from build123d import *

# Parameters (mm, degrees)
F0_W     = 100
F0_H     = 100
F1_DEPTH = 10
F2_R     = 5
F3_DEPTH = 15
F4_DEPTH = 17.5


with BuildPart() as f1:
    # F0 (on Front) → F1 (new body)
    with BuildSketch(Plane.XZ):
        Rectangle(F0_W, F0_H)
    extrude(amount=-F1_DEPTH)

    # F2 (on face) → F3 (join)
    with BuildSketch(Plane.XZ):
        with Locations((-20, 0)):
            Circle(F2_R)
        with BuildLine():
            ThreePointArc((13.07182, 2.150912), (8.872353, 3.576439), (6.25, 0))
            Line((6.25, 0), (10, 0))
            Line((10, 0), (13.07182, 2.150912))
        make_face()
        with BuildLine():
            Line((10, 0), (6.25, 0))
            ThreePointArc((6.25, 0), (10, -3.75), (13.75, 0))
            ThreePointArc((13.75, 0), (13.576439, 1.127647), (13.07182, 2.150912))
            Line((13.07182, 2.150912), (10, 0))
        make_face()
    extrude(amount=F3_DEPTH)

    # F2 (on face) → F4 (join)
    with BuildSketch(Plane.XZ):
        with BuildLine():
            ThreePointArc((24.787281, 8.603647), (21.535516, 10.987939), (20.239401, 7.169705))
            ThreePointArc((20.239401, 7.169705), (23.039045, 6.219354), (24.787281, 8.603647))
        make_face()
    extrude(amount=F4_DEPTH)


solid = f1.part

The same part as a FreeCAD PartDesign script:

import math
import FreeCAD as App
import Part
import Sketcher
from FreeCAD import Vector

doc = App.newDocument("Part")
body = doc.addObject("PartDesign::Body", "Body")

# Sketch on XZ plane
sketch1 = body.newObject("Sketcher::SketchObject", "Sketch")
sketch1.AttachmentSupport = (doc.getObject("XZ_Plane"), [""])
sketch1.MapMode = "FlatFace"
sketch1.addGeometry(Part.LineSegment(Vector(-50, 50, 0), Vector(-50, -50, 0)), False)
sketch1.addGeometry(Part.LineSegment(Vector(-50, -50, 0), Vector(50, -50, 0)), False)
sketch1.addGeometry(Part.LineSegment(Vector(50, -50, 0), Vector(50, 50, 0)), False)
sketch1.addGeometry(Part.LineSegment(Vector(50, 50, 0), Vector(-50, 50, 0)), False)
sketch1.addConstraint(Sketcher.Constraint("Coincident", 0, 2, 1, 1))
sketch1.addConstraint(Sketcher.Constraint("Coincident", 1, 2, 2, 1))
sketch1.addConstraint(Sketcher.Constraint("Coincident", 2, 2, 3, 1))
sketch1.addConstraint(Sketcher.Constraint("Coincident", 3, 2, 0, 1))
sketch1.addConstraint(Sketcher.Constraint("Vertical", 0))
sketch1.addConstraint(Sketcher.Constraint("Horizontal", 1))
sketch1.addConstraint(Sketcher.Constraint("Vertical", 2))
sketch1.addConstraint(Sketcher.Constraint("Horizontal", 3))
sketch1.addConstraint(Sketcher.Constraint("Symmetric", 0, 2, 2, 2, -1, 1))
sketch1.addConstraint(Sketcher.Constraint("Equal", 3, 0))
sketch1.addConstraint(Sketcher.Constraint("DistanceX", 1, 1, 1, 2, 100.0))
pad1 = body.newObject("PartDesign::Pad", "Pad")
pad1.Profile = sketch1
pad1.Length = 10
pad1.Reversed = True

# Sketch on XZ plane
sketch2 = body.newObject("Sketcher::SketchObject", "Sketch001")
sketch2.AttachmentSupport = (doc.getObject("XZ_Plane"), [""])
sketch2.MapMode = "FlatFace"
sketch2.addGeometry(Part.Circle(Vector(-20, 0, 0), Vector(0, 0, 1), 5), False)
sketch2.addGeometry(Part.ArcOfCircle(Part.Circle(Vector(10, 0.000001, 0), Vector(0, 0, 1), 3.75), math.radians(34.999997), math.radians(180.00001)), False)
sketch2.addGeometry(Part.ArcOfCircle(Part.Circle(Vector(10, 0, 0), Vector(0, 0, 1), 3.75), math.radians(180), math.radians(360)), False)
sketch2.addGeometry(Part.ArcOfCircle(Part.Circle(Vector(10.000009, 0.000003, 0), Vector(0, 0, 1), 3.749991), math.radians(-0.000047), math.radians(35.000049)), False)
sketch2.addConstraint(Sketcher.Constraint("Tangent", 1, 2, 2, 1))
sketch2.addConstraint(Sketcher.Constraint("Tangent", 2, 2, 3, 1))
sketch2.addConstraint(Sketcher.Constraint("Tangent", 3, 2, 1, 1))
sketch2.addConstraint(Sketcher.Constraint("PointOnObject", 0, 3, -1))
sketch2.addConstraint(Sketcher.Constraint("PointOnObject", 1, 3, -1))
sketch2.addConstraint(Sketcher.Constraint("PointOnObject", 1, 2, -1))
sketch2.addConstraint(Sketcher.Constraint("PointOnObject", 2, 2, -1))
sketch2.addConstraint(Sketcher.Constraint("Diameter", 0, 10.0))
sketch2.addConstraint(Sketcher.Constraint("Radius", 1, 3.75))
sketch2.addConstraint(Sketcher.Constraint("DistanceX", 0, 3, -1, 1, 20.0))
sketch2.addConstraint(Sketcher.Constraint("DistanceX", -1, 1, 1, 3, 10.0))
sketch2.addConstraint(Sketcher.Constraint("DistanceX", -1, 1, 3, 2, 13.07182))
pad2 = body.newObject("PartDesign::Pad", "Pad001")
pad2.Profile = sketch2
pad2.Length = 15

# Sketch on XZ plane
sketch3 = body.newObject("Sketcher::SketchObject", "Sketch002")
sketch3.AttachmentSupport = (doc.getObject("XZ_Plane"), [""])
sketch3.MapMode = "FlatFace"
sketch3.addGeometry(Part.ArcOfCircle(Part.Circle(Vector(22.287281, 8.603647, 0), Vector(0, 0, 1), 2.5), math.radians(0.000009), math.radians(215.000013)), False)
sketch3.addGeometry(Part.ArcOfCircle(Part.Circle(Vector(22.287281, 8.603647, 0), Vector(0, 0, 1), 2.5), math.radians(-144.999987), math.radians(0.000009)), False)
sketch3.addConstraint(Sketcher.Constraint("Tangent", 0, 1, 1, 2))
sketch3.addConstraint(Sketcher.Constraint("Coincident", 1, 1, 0, 2))
sketch3.addConstraint(Sketcher.Constraint("Horizontal", 1, 3, 0, 1))
sketch3.addConstraint(Sketcher.Constraint("Radius", 0, 2.5))
sketch3.addConstraint(Sketcher.Constraint("DistanceX", -1, 1, 1, 1, 20.239401))
sketch3.addConstraint(Sketcher.Constraint("DistanceX", -1, 1, 0, 3, 22.287281))
sketch3.addConstraint(Sketcher.Constraint("DistanceY", -1, 1, 0, 3, 8.603647))
pad3 = body.newObject("PartDesign::Pad", "Pad002")
pad3.Profile = sketch3
pad3.Length = 17.5

doc.recompute()
